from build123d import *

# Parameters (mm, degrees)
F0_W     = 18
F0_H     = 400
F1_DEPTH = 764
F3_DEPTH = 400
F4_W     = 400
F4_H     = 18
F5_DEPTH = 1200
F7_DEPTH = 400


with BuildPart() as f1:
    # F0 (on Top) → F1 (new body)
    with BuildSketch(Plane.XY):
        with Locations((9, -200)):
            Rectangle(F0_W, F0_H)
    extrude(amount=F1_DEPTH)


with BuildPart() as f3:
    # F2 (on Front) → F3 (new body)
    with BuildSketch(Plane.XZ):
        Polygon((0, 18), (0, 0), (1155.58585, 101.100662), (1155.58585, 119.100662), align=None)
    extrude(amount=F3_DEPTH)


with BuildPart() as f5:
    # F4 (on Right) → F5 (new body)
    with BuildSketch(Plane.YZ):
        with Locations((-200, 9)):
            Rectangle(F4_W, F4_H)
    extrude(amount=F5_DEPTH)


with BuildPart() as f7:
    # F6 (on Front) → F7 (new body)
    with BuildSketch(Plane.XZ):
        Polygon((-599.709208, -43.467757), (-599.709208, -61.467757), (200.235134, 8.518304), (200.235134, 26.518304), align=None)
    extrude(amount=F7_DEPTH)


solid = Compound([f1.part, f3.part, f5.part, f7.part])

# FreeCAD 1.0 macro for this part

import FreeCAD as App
import Part
import Sketcher
Q = App.Units.Quantity

doc = App.newDocument("Part")
body = doc.addObject("PartDesign::Body", "Body")

# Sketch on XY plane
sketch1 = body.newObject("Sketcher::SketchObject", "Sketch")
sketch1.AttachmentSupport = (doc.getObject("XY_Plane"), [""])
sketch1.MapMode = "FlatFace"
sketch1.addGeometry(Part.LineSegment(App.Vector(0, 0, 0), App.Vector(0, -400, 0)), False)
sketch1.addGeometry(Part.LineSegment(App.Vector(0, -400, 0), App.Vector(18, -400, 0)), False)
sketch1.addGeometry(Part.LineSegment(App.Vector(18, -400, 0), App.Vector(18, 0, 0)), False)
sketch1.addGeometry(Part.LineSegment(App.Vector(18, 0, 0), App.Vector(0, 0, 0)), False)
sketch1.addConstraint(Sketcher.Constraint("Coincident", 0, 2, 1, 1))
sketch1.addConstraint(Sketcher.Constraint("Coincident", 1, 2, 2, 1))
sketch1.addConstraint(Sketcher.Constraint("Coincident", 2, 2, 3, 1))
sketch1.addConstraint(Sketcher.Constraint("Coincident", 3, 2, 0, 1))
sketch1.addConstraint(Sketcher.Constraint("Vertical", 0))
sketch1.addConstraint(Sketcher.Constraint("Horizontal", 1))
sketch1.addConstraint(Sketcher.Constraint("Vertical", 2))
sketch1.addConstraint(Sketcher.Constraint("Horizontal", 3))
sketch1.addConstraint(Sketcher.Constraint("Coincident", 3, 2, -1, 1))
sketch1.addConstraint(Sketcher.Constraint("DistanceX", 1, 1, 1, 2, 18.0))
sketch1.addConstraint(Sketcher.Constraint("DistanceY", 0, 2, 0, 1, 400.0))
pad1 = body.newObject("PartDesign::Pad", "Pad")
pad1.Profile = sketch1
pad1.Length = 764
body2 = doc.addObject("PartDesign::Body", "Body001")

# Sketch on XZ plane
sketch2 = body2.newObject("Sketcher::SketchObject", "Sketch001")
sketch2.AttachmentSupport = (doc.getObject("XZ_Plane001"), [""])
sketch2.MapMode = "FlatFace"
sketch2.addGeometry(Part.LineSegment(App.Vector(0, 18, 0), App.Vector(0, 0, 0)), False)
sketch2.addGeometry(Part.LineSegment(App.Vector(0, 0, 0), App.Vector(1155.58585, 101.100662, 0)), False)
sketch2.addGeometry(Part.LineSegment(App.Vector(1155.58585, 101.100662, 0), App.Vector(1155.58585, 119.100662, 0)), False)
sketch2.addGeometry(Part.LineSegment(App.Vector(1155.58585, 119.100662, 0), App.Vector(0, 18, 0)), False)
sketch2.addConstraint(Sketcher.Constraint("Coincident", 0, 2, 1, 1))
sketch2.addConstraint(Sketcher.Constraint("Coincident", 1, 2, 2, 1))
sketch2.addConstraint(Sketcher.Constraint("Coincident", 2, 2, 3, 1))
sketch2.addConstraint(Sketcher.Constraint("Coincident", 3, 2, 0, 1))
sketch2.addConstraint(Sketcher.Constraint("Vertical", 0))
sketch2.addConstraint(Sketcher.Constraint("Vertical", 2))
sketch2.addConstraint(Sketcher.Constraint("Coincident", 0, 2, -1, 1))
sketch2.addConstraint(Sketcher.Constraint("Parallel", 1, 3))
sketch2.addConstraint(Sketcher.Constraint("DistanceY", 0, 2, 0, 1, 18.0))
sketch2.addConstraint(Sketcher.Constraint("Angle", 1, Q("5 deg")))
sketch2.addConstraint(Sketcher.Constraint("Distance", 1, 1160.0))
pad2 = body2.newObject("PartDesign::Pad", "Pad001")
pad2.Profile = sketch2
pad2.Length = 400
body3 = doc.addObject("PartDesign::Body", "Body002")

# Sketch on YZ plane
sketch3 = body3.newObject("Sketcher::SketchObject", "Sketch002")
sketch3.AttachmentSupport = (doc.getObject("YZ_Plane002"), [""])
sketch3.MapMode = "FlatFace"
sketch3.addGeometry(Part.LineSegment(App.Vector(-400, 18, 0), App.Vector(-400, 0, 0)), False)
sketch3.addGeometry(Part.LineSegment(App.Vector(-400, 0, 0), App.Vector(0, 0, 0)), False)
sketch3.addGeometry(Part.LineSegment(App.Vector(0, 0, 0), App.Vector(0, 18, 0)), False)
sketch3.addGeometry(Part.LineSegment(App.Vector(0, 18, 0), App.Vector(-400, 18, 0)), False)
sketch3.addConstraint(Sketcher.Constraint("Coincident", 0, 2, 1, 1))
sketch3.addConstraint(Sketcher.Constraint("Coincident", 1, 2, 2, 1))
sketch3.addConstraint(Sketcher.Constraint("Coincident", 2, 2, 3, 1))
sketch3.addConstraint(Sketcher.Constraint("Coincident", 3, 2, 0, 1))
sketch3.addConstraint(Sketcher.Constraint("Vertical", 0))
sketch3.addConstraint(Sketcher.Constraint("Horizontal", 1))
sketch3.addConstraint(Sketcher.Constraint("Vertical", 2))
sketch3.addConstraint(Sketcher.Constraint("Horizontal", 3))
sketch3.addConstraint(Sketcher.Constraint("Coincident", 1, 2, -1, 1))
sketch3.addConstraint(Sketcher.Constraint("DistanceX", 1, 1, 1, 2, 400.0))
sketch3.addConstraint(Sketcher.Constraint("DistanceY", 0, 2, 0, 1, 18.0))
pad3 = body3.newObject("PartDesign::Pad", "Pad002")
pad3.Profile = sketch3
pad3.Length = 1200
body4 = doc.addObject("PartDesign::Body", "Body003")

# Sketch on XZ plane
sketch4 = body4.newObject("Sketcher::SketchObject", "Sketch003")
sketch4.AttachmentSupport = (doc.getObject("XZ_Plane003"), [""])
sketch4.MapMode = "FlatFace"
sketch4.addGeometry(Part.LineSegment(App.Vector(-599.709208, -43.467757, 0), App.Vector(-599.709208, -61.467757, 0)), False)
sketch4.addGeometry(Part.LineSegment(App.Vector(-599.709208, -61.467757, 0), App.Vector(200.235134, 8.518304, 0)), False)
sketch4.addGeometry(Part.LineSegment(App.Vector(200.235134, 8.518304, 0), App.Vector(200.235134, 26.518304, 0)), False)
sketch4.addGeometry(Part.LineSegment(App.Vector(200.235134, 26.518304, 0), App.Vector(-599.709208, -43.467757, 0)), False)
sketch4.addConstraint(Sketcher.Constraint("Coincident", 0, 2, 1, 1))
sketch4.addConstraint(Sketcher.Constraint("Coincident", 1, 2, 2, 1))
sketch4.addConstraint(Sketcher.Constraint("Coincident", 2, 2, 3, 1))
sketch4.addConstraint(Sketcher.Constraint("Coincident", 3, 2, 0, 1))
sketch4.addConstraint(Sketcher.Constraint("Vertical", 0))
sketch4.addConstraint(Sketcher.Constraint("Vertical", 2))
sketch4.addConstraint(Sketcher.Constraint("Parallel", 1, 3))
sketch4.addConstraint(Sketcher.Constraint("DistanceY", 0, 2, 0, 1, 18.0))
sketch4.addConstraint(Sketcher.Constraint("Angle", 1, Q("5 deg")))
sketch4.addConstraint(Sketcher.Constraint("Distance", 1, 802.999999))
sketch4.addConstraint(Sketcher.Constraint("DistanceX", 0, 2, -1, 1, 599.709208))
sketch4.addConstraint(Sketcher.Constraint("DistanceY", 0, 2, -1, 1, 61.467757))
pad4 = body4.newObject("PartDesign::Pad", "Pad003")
pad4.Profile = sketch4
pad4.Length = 400

doc.recompute()
